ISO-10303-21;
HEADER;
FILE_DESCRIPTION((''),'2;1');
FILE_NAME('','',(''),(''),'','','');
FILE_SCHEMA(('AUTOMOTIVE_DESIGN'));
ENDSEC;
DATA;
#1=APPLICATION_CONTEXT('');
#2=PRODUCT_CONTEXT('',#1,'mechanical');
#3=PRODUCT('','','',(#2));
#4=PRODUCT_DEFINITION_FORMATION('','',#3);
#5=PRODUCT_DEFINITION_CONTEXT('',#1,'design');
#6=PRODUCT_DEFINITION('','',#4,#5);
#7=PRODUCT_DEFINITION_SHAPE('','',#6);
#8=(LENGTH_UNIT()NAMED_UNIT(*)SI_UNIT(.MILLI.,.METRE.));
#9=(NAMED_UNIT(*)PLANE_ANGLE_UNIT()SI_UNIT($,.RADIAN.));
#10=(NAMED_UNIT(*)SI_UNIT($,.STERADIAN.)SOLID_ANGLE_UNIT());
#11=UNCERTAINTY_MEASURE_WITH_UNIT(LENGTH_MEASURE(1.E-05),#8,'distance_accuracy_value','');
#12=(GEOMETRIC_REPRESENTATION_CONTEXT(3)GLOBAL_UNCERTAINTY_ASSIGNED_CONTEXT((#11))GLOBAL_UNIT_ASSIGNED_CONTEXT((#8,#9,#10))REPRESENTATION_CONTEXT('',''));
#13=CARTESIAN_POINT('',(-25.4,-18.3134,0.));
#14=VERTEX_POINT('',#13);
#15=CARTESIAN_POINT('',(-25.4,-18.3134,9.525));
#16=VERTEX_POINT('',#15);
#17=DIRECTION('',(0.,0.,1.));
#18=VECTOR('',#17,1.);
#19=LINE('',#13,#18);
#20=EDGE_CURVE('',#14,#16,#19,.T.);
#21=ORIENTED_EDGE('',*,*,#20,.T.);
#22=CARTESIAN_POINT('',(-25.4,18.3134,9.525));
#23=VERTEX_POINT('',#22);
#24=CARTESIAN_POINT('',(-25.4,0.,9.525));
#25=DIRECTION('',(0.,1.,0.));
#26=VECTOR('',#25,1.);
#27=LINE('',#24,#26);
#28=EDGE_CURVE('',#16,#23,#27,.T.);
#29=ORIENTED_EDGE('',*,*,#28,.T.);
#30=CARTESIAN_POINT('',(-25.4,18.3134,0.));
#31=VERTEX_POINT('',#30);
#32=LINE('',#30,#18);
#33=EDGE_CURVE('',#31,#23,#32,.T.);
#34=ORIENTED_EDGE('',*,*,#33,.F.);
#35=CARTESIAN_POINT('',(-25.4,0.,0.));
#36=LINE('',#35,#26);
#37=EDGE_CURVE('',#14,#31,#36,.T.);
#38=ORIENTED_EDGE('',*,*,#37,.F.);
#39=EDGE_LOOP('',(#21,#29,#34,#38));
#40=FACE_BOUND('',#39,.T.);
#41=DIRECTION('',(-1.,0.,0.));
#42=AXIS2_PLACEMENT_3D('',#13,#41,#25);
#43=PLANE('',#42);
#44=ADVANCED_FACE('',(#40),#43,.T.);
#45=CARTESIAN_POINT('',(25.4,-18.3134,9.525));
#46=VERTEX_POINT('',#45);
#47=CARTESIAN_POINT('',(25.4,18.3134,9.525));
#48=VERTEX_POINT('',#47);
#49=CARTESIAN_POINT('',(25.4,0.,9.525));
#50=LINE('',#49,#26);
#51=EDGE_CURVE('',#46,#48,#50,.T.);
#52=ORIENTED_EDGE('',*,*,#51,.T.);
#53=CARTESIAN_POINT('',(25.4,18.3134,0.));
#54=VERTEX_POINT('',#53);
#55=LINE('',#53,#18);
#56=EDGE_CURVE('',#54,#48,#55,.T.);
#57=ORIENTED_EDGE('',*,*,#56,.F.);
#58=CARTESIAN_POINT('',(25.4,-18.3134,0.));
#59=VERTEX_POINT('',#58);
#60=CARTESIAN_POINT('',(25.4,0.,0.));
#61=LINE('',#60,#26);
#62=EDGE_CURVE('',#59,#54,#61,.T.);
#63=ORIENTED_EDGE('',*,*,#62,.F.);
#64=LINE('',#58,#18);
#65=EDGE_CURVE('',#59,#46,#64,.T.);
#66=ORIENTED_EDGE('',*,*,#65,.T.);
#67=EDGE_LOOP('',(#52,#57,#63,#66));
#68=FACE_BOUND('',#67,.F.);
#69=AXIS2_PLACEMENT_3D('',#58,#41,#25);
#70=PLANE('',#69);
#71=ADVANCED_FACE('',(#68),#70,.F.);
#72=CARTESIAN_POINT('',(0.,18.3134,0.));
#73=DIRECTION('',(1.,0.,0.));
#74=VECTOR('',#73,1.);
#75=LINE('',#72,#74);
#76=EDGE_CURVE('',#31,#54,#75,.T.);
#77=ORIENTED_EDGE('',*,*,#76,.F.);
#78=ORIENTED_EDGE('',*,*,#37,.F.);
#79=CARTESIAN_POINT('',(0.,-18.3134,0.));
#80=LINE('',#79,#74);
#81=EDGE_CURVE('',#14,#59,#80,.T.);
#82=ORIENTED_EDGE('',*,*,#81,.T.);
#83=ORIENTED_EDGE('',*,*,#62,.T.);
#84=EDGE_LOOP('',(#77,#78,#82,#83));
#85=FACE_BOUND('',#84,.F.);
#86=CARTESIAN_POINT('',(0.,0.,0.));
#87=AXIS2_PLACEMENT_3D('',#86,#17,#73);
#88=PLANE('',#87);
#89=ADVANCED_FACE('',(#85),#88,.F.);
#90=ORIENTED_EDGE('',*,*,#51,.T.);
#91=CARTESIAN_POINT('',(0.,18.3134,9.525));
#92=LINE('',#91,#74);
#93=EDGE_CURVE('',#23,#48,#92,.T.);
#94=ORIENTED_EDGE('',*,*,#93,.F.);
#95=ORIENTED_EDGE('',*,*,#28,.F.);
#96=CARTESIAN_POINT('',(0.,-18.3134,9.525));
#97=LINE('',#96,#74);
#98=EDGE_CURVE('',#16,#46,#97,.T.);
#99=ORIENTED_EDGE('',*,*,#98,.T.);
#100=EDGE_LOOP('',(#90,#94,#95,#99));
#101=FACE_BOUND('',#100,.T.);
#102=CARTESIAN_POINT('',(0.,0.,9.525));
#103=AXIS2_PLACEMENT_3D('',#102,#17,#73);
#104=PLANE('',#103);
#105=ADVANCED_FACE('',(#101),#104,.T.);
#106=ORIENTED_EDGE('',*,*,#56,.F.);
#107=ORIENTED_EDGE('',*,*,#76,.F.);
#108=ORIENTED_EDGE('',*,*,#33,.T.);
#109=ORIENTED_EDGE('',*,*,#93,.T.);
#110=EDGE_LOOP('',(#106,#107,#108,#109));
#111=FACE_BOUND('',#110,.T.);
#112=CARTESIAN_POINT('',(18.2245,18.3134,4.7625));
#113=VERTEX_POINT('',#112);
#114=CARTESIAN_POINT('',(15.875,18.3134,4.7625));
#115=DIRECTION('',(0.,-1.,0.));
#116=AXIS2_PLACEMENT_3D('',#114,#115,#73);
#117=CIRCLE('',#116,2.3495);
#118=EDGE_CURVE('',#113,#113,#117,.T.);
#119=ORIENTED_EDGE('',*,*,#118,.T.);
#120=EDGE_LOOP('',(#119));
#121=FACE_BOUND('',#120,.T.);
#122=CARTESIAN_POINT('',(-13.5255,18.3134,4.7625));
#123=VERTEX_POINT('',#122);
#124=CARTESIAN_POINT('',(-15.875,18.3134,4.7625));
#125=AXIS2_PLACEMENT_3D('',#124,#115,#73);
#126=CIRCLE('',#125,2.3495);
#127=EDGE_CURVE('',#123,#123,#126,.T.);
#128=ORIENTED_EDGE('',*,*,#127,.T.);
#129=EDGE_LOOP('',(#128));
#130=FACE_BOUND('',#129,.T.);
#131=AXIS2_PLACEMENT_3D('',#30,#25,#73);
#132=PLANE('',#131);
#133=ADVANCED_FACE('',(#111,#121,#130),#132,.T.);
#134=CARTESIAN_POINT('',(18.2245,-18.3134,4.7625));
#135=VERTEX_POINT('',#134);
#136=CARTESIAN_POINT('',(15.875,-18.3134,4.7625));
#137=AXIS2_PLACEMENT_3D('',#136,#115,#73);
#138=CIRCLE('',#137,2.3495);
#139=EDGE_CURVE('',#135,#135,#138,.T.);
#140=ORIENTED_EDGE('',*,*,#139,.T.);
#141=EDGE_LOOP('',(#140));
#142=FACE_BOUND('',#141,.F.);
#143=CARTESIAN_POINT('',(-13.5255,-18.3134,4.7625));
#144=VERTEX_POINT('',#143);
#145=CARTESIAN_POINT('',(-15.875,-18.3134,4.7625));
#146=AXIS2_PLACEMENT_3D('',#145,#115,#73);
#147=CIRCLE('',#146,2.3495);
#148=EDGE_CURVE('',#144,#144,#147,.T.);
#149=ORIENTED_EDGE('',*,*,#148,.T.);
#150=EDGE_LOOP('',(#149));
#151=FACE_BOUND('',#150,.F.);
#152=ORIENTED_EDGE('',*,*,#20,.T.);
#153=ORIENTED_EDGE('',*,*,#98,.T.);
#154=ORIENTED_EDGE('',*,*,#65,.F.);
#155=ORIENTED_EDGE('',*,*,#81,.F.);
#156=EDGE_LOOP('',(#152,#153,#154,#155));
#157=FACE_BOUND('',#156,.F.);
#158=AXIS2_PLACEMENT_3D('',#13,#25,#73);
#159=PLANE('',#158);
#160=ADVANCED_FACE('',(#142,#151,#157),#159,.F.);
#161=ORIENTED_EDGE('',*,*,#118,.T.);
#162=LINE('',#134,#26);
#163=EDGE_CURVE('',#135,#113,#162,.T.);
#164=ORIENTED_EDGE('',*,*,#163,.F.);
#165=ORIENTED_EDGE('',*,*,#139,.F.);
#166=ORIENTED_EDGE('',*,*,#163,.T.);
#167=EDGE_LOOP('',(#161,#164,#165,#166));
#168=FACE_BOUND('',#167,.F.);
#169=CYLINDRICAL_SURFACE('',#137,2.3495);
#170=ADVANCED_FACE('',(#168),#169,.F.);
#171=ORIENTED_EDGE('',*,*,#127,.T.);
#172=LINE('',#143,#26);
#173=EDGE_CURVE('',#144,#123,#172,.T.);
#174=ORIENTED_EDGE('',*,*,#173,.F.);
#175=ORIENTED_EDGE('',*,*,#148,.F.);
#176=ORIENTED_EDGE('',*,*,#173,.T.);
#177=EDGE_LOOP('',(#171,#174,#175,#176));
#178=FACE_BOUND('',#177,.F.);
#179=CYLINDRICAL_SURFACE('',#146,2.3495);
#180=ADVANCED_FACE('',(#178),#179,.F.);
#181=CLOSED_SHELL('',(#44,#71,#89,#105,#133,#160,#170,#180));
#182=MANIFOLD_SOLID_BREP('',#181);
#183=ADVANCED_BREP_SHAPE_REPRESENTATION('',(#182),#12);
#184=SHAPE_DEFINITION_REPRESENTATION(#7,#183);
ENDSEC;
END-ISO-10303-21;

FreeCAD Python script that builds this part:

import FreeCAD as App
import Part
import Sketcher
from FreeCAD import Vector
Q = App.Units.Quantity


def add_polygon(sketch, points):
    """Adds a closed chain of lines whose ends are joined by coincident constraints."""
    first, n = sketch.GeometryCount, len(points)
    for a, b in zip(points, points[1:] + points[:1]):
        sketch.addGeometry(Part.LineSegment(App.Vector(*a, 0), App.Vector(*b, 0)), False)
    for i in range(n):
        sketch.addConstraint(Sketcher.Constraint("Coincident", first + i, 2, first + (i + 1) % n, 1))

doc = App.newDocument("Part")
params = doc.addObject("Spreadsheet::Sheet", "Params")
for row, (alias, value) in enumerate([
    ("sketch1_width", "2 in"),
    ("sketch1_height", "1.442 in"),
    ("pad1_length", "0.375 in"),
    ("sketch2_diameter", "0.185 in"),
], start=1):
    params.set(f"A{row}", alias)
    params.set(f"B{row}", "=" + value)
    params.setAlias(f"B{row}", alias)

body = doc.addObject("PartDesign::Body", "Body")

# Sketch on XY plane
sketch1 = body.newObject("Sketcher::SketchObject", "Sketch")
sketch1.AttachmentSupport = (doc.getObject("XY_Plane"), [""])
sketch1.MapMode = "FlatFace"
add_polygon(sketch1, [(-25, 18), (-25, -18), (25, -18), (25, 18)])  # lines 0-3
sketch1.addConstraint([
    Sketcher.Constraint("Vertical", 0),
    Sketcher.Constraint("Horizontal", 1),
    Sketcher.Constraint("Vertical", 2),
    Sketcher.Constraint("Horizontal", 3),
    Sketcher.Constraint("Symmetric", 0, 2, 2, 2, -1, 1),
    Sketcher.Constraint("DistanceX", 1, 1, 1, 2, Q("2 in")),
    Sketcher.Constraint("DistanceY", 0, 2, 0, 1, Q("1.442 in")),
])
sketch1.setExpression("Constraints[9]", "Params.sketch1_width")
sketch1.setExpression("Constraints[10]", "Params.sketch1_height")
pad1 = body.newObject("PartDesign::Pad", "Pad")
pad1.Profile = sketch1
pad1.setExpression("Length", "Params.pad1_length")

# Sketch on XZ plane
sketch2 = body.newObject("Sketcher::SketchObject", "Sketch001")
sketch2.AttachmentSupport = (doc.getObject("XZ_Plane"), [""])
sketch2.MapMode = "FlatFace"
sketch2.AttachmentOffset = App.Placement(Vector(0, 0, 0.721 * 25.4), App.Rotation())
sketch2.addGeometry([
    Part.Circle(Vector(-15.9, 4.8, 0), Vector(0, 0, 1), 2.3),
    Part.Circle(Vector(15.9, 4.8, 0), Vector(0, 0, 1), 2.3),
], False)
sketch2.addConstraint([
    Sketcher.Constraint("Equal", 0, 1),
    Sketcher.Constraint("Symmetric", 0, 3, 1, 3, -2),
    Sketcher.Constraint("Diameter", 0, Q("0.185 in")),
    Sketcher.Constraint("DistanceX", 0, 3, 1, 3, Q("1.25 in")),
    Sketcher.Constraint("DistanceY", -1, 1, 0, 3, Q("0.1875 in")),
])
sketch2.setExpression("Constraints[2]", "Params.sketch2_diameter")
pocket1 = body.newObject("PartDesign::Pocket", "Pocket")
pocket1.Profile = sketch2
pocket1.Type = "ThroughAll"

doc.recompute()
